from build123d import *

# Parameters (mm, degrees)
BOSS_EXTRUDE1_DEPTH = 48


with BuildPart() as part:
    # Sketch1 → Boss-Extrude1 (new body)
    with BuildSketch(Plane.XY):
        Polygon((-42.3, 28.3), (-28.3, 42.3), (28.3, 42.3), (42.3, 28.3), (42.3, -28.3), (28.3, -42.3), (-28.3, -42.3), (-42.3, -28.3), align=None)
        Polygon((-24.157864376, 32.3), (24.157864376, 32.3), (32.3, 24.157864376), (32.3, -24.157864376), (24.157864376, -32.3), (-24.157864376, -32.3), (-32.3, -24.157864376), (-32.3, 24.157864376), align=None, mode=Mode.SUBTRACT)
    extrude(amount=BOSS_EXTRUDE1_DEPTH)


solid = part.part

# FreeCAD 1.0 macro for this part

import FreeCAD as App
import Part
import Sketcher


def add_polygon(sketch, points):
    """Adds a closed chain of lines whose ends are joined by coincident constraints."""
    first, n = sketch.GeometryCount, len(points)
    for a, b in zip(points, points[1:] + points[:1]):
        sketch.addGeometry(Part.LineSegment(App.Vector(*a, 0), App.Vector(*b, 0)), False)
    for i in range(n):
        sketch.addConstraint(Sketcher.Constraint("Coincident", first + i, 2, first + (i + 1) % n, 1))

doc = App.newDocument("Part")
params = doc.addObject("Spreadsheet::Sheet", "Params")
for row, (alias, value) in enumerate([
    ("sketch1_width", "56.6 mm"),
    ("pad1_length", "48 mm"),
], start=1):
    params.set(f"A{row}", alias)
    params.set(f"B{row}", "=" + value)
    params.setAlias(f"B{row}", alias)

body = doc.addObject("PartDesign::Body", "Body")

sketch1 = body.newObject("Sketcher::SketchObject", "Sketch")
sketch1.AttachmentSupport = (doc.getObject("XY_Plane"), [""])
sketch1.MapMode = "FlatFace"
add_polygon(sketch1, [(-28, 42), (-42, 28), (-42, -28), (-28, -42), (28, -42), (42, -28), (42, 28), (28, 42)])
add_polygon(sketch1, [(-24, 32), (24, 32), (32, 24), (32, -24), (24, -32), (-24, -32), (-32, -24), (-32, 24)])
sketch1.addConstraint([
    Sketcher.Constraint("Vertical", 1),
    Sketcher.Constraint("Horizontal", 3),
    Sketcher.Constraint("Vertical", 5),
    Sketcher.Constraint("Horizontal", 7),
    Sketcher.Constraint("Horizontal", 8),
    Sketcher.Constraint("Vertical", 10),
    Sketcher.Constraint("Horizontal", 12),
    Sketcher.Constraint("Vertical", 14),
    Sketcher.Constraint("Symmetric", 0, 2, 4, 2, -1, 1),
    Sketcher.Constraint("Symmetric", 2, 2, 6, 2, -1, 1),
    Sketcher.Constraint("Symmetric", 8, 2, 12, 2, -1, 1),
    Sketcher.Constraint("Symmetric", 9, 2, 13, 2, -1, 1),
    Sketcher.Constraint("Perpendicular", 0, 2),
    Sketcher.Constraint("Perpendicular", 2, 4),
    Sketcher.Constraint("Perpendicular", 4, 6),
    Sketcher.Constraint("Parallel", 6, 9),
    Sketcher.Constraint("Perpendicular", 9, 11),
    Sketcher.Constraint("Perpendicular", 13, 15),
    Sketcher.Constraint("Horizontal", 1, 2, 4, 2),
    Sketcher.Constraint("Horizontal", 10, 2, 13, 2),
    Sketcher.Constraint("Horizontal", 9, 2, 14, 2),
    Sketcher.Constraint("Vertical", 3, 2, 6, 2),
    Sketcher.Constraint("Equal", 7, 1),
    Sketcher.Constraint("Equal", 12, 10),
    Sketcher.Constraint("DistanceX", 3, 1, 3, 2, 56.6),
    Sketcher.Constraint("DistanceX", 1, 2, 2, 2, 14.0),
    Sketcher.Constraint("DistanceY", 8, 2, 6, 2, 10.0),
    Sketcher.Constraint("DistanceX", 8, 1, 8, 2, 48.315729),
])
sketch1.setExpression("Constraints[40]", "Params.sketch1_width")
pad1 = body.newObject("PartDesign::Pad", "Pad")
pad1.Profile = sketch1
pad1.setExpression("Length", "Params.pad1_length")

doc.recompute()
